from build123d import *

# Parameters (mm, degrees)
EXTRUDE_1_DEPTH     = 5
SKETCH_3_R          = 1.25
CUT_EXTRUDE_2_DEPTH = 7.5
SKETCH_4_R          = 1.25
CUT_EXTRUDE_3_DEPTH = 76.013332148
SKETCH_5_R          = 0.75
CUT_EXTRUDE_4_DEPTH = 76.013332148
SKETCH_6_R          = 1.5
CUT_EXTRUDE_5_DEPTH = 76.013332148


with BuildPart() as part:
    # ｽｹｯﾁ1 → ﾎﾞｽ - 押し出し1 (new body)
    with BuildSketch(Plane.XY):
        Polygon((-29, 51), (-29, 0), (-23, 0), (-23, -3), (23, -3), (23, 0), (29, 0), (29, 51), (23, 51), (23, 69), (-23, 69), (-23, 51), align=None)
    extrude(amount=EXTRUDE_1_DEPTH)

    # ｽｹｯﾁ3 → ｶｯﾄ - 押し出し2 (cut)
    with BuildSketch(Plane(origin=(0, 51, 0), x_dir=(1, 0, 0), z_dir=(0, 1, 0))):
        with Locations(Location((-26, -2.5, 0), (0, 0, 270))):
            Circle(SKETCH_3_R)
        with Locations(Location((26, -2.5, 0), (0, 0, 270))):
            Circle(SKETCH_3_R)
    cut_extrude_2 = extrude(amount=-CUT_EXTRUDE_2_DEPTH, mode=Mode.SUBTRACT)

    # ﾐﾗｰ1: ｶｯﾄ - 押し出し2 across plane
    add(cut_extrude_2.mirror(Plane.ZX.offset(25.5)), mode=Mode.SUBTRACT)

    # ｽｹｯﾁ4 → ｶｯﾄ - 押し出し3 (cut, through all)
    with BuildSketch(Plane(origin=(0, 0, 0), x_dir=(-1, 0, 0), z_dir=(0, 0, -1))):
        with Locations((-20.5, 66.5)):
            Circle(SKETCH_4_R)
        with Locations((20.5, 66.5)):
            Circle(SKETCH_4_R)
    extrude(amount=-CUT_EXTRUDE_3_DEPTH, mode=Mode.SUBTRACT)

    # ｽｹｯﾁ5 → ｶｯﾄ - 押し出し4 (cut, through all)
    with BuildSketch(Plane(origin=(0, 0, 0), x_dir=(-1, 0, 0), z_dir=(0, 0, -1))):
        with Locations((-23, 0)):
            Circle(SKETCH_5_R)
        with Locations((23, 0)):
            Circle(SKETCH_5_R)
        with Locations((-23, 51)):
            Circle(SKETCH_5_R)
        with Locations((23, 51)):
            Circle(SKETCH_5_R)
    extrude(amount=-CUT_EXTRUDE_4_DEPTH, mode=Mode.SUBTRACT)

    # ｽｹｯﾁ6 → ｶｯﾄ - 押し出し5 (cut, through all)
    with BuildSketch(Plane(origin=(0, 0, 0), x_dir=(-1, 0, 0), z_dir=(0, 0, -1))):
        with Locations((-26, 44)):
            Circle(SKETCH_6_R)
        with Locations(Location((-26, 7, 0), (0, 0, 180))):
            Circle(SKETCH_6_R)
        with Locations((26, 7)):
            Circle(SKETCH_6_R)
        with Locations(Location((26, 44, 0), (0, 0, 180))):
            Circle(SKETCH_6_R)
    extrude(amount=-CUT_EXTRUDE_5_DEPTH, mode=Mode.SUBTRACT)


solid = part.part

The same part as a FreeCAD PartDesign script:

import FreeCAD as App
import Part
import Sketcher

V = App.Vector


def add_polygon(sketch, points):
    """Adds a closed chain of lines whose ends are joined by coincident constraints."""
    first, n = sketch.GeometryCount, len(points)
    for a, b in zip(points, points[1:] + points[:1]):
        sketch.addGeometry(Part.LineSegment(App.Vector(*a, 0), App.Vector(*b, 0)), False)
    for i in range(n):
        sketch.addConstraint(Sketcher.Constraint("Coincident", first + i, 2, first + (i + 1) % n, 1))

doc = App.newDocument("Part")
params = doc.addObject("Spreadsheet::Sheet", "Params")
for row, (alias, value) in enumerate([
    ("sketch1_width", "6 mm"),
    ("sketch1_width2", "46 mm"),
    ("sketch1_height", "51 mm"),
    ("sketch1_height2", "3 mm"),
    ("sketch1_height3", "18 mm"),
    ("pad1_length", "5 mm"),
    ("sketch2_diameter", "2.5 mm"),
    ("pocket1_length", "7.5 mm"),
    ("sketch3_diameter", "2.5 mm"),
    ("sketch4_diameter", "1.5 mm"),
    ("sketch5_diameter", "3 mm"),
], start=1):
    params.set(f"A{row}", alias)
    params.set(f"B{row}", "=" + value)
    params.setAlias(f"B{row}", alias)

body = doc.addObject("PartDesign::Body", "Body")

sketch1 = doc.addObject("Sketcher::SketchObject", "Sketch")
body.addObject(sketch1)
sketch1.AttachmentSupport = (doc.XY_Plane, [""])
sketch1.MapMode = "FlatFace"
add_polygon(sketch1, [(-29, 51), (-29, 0), (-23, 0), (-23, -3), (23, -3), (23, 0), (29, 0), (29, 51), (23, 51), (23, 69), (-23, 69), (-23, 51)])
sketch1.addConstraint([
    Sketcher.Constraint("Vertical", 0),
    Sketcher.Constraint("Horizontal", 1),
    Sketcher.Constraint("Vertical", 2),
    Sketcher.Constraint("Horizontal", 3),
    Sketcher.Constraint("Vertical", 4),
    Sketcher.Constraint("Horizontal", 5),
    Sketcher.Constraint("Vertical", 6),
    Sketcher.Constraint("Horizontal", 7),
    Sketcher.Constraint("Vertical", 8),
    Sketcher.Constraint("Horizontal", 9),
    Sketcher.Constraint("Vertical", 10),
    Sketcher.Constraint("Horizontal", 11),
    Sketcher.Constraint("Symmetric", 1, 2, 4, 2, -1, 1),
    Sketcher.Constraint("Symmetric", 0, 2, 5, 2, -2),
    Sketcher.Constraint("Symmetric", 7, 2, 10, 2, -2),
    Sketcher.Constraint("Vertical", 4, 2, 7, 2),
    Sketcher.Constraint("DistanceX", 1, 1, 1, 2, 6.0),
    Sketcher.Constraint("DistanceX", 3, 1, 3, 2, 46.0),
    Sketcher.Constraint("DistanceY", 0, 2, 0, 1, 51.0),
    Sketcher.Constraint("DistanceY", 2, 2, 2, 1, 3.0),
    Sketcher.Constraint("DistanceY", 8, 1, 8, 2, 18.0),
])
sketch1.setExpression("Constraints[28]", "Params.sketch1_width")
sketch1.setExpression("Constraints[29]", "Params.sketch1_width2")
sketch1.setExpression("Constraints[30]", "Params.sketch1_height")
sketch1.setExpression("Constraints[31]", "Params.sketch1_height2")
sketch1.setExpression("Constraints[32]", "Params.sketch1_height3")
pad1 = doc.addObject("PartDesign::Pad", "Pad")
body.addObject(pad1)
pad1.Profile = sketch1
pad1.setExpression("Length", "Params.pad1_length")

sketch2 = doc.addObject("Sketcher::SketchObject", "Sketch001")
body.addObject(sketch2)
sketch2.AttachmentSupport = (doc.XZ_Plane, [""])
sketch2.MapMode = "FlatFace"
sketch2.AttachmentOffset = App.Placement(V(0, 0, -51), App.Rotation())
sketch2.addGeometry([
    Part.Circle(V(-26, 2.5, 0), V(0, 0, 1), 1.2),
    Part.Circle(V(26, 2.5, 0), V(0, 0, 1), 1.2),
], False)
sketch2.addConstraint([
    Sketcher.Constraint("Equal", 0, 1),
    Sketcher.Constraint("Symmetric", 0, 3, 1, 3, -2),
    Sketcher.Constraint("Diameter", 0, 2.5),
    Sketcher.Constraint("DistanceX", 0, 3, -1, 1, 26.0),
    Sketcher.Constraint("DistanceY", -1, 1, 0, 3, 2.5),
])
sketch2.setExpression("Constraints[2]", "Params.sketch2_diameter")
pocket1 = doc.addObject("PartDesign::Pocket", "Pocket")
body.addObject(pocket1)
pocket1.Profile = sketch2
pocket1.setExpression("Length", "Params.pocket1_length")
pocket1.Reversed = True
doc.recompute()

datumplane = doc.addObject("PartDesign::Plane", "DatumPlane")
body.addObject(datumplane)
datumplane.AttachmentSupport = (doc.XZ_Plane, [""])
datumplane.MapMode = "FlatFace"
datumplane.AttachmentOffset = App.Placement(V(0, 0, -25.5), App.Rotation())
mirrored = doc.addObject("PartDesign::Mirrored", "Mirrored")
body.addObject(mirrored)
mirrored.Originals = [pocket1]
mirrored.MirrorPlane = (datumplane, [""])
body.Tip = mirrored

sketch3 = doc.addObject("Sketcher::SketchObject", "Sketch002")
body.addObject(sketch3)
sketch3.AttachmentSupport = (doc.XY_Plane, [""])
sketch3.MapMode = "FlatFace"
sketch3.addGeometry([
    Part.Circle(V(20.5, 66.5, 0), V(0, 0, 1), 1.2),
    Part.Circle(V(-20.5, 66.5, 0), V(0, 0, 1), 1.2),
], False)
sketch3.addConstraint([
    Sketcher.Constraint("Equal", 0, 1),
    Sketcher.Constraint("Symmetric", 0, 3, 1, 3, -2),
    Sketcher.Constraint("Diameter", 0, 2.5),
    Sketcher.Constraint("DistanceX", 1, 3, 0, 3, 41.0),
    Sketcher.Constraint("DistanceY", -1, 1, 0, 3, 66.5),
])
sketch3.setExpression("Constraints[2]", "Params.sketch3_diameter")
pocket2 = doc.addObject("PartDesign::Pocket", "Pocket001")
body.addObject(pocket2)
pocket2.Profile = sketch3
pocket2.Type = "ThroughAll"
pocket2.Reversed = True

sketch4 = doc.addObject("Sketcher::SketchObject", "Sketch003")
body.addObject(sketch4)
sketch4.AttachmentSupport = (doc.XY_Plane, [""])
sketch4.MapMode = "FlatFace"
sketch4.addGeometry([
    Part.Circle(V(23, 0, 0), V(0, 0, 1), 0.8),
    Part.Circle(V(-23, 0, 0), V(0, 0, 1), 0.8),
    Part.Circle(V(23, 51, 0), V(0, 0, 1), 0.8),
    Part.Circle(V(-23, 51, 0), V(0, 0, 1), 0.8),
], False)
sketch4.addConstraint([
    Sketcher.Constraint("Equal", 0, 1),
    Sketcher.Constraint("Equal", 1, 2),
    Sketcher.Constraint("Equal", 2, 3),
    Sketcher.Constraint("Symmetric", 0, 3, 1, 3, -1, 1),
    Sketcher.Constraint("Symmetric", 2, 3, 3, 3, -2),
    Sketcher.Constraint("PointOnObject", 0, 3, -1),
    Sketcher.Constraint("Vertical", 0, 3, 2, 3),
    Sketcher.Constraint("Diameter", 0, 1.5),
    Sketcher.Constraint("DistanceX", -1, 1, 0, 3, 23.0),
    Sketcher.Constraint("DistanceY", -1, 1, 2, 3, 51.0),
])
sketch4.setExpression("Constraints[7]", "Params.sketch4_diameter")
pocket3 = doc.addObject("PartDesign::Pocket", "Pocket002")
body.addObject(pocket3)
pocket3.Profile = sketch4
pocket3.Type = "ThroughAll"
pocket3.Reversed = True

sketch5 = doc.addObject("Sketcher::SketchObject", "Sketch004")
body.addObject(sketch5)
sketch5.AttachmentSupport = (doc.XY_Plane, [""])
sketch5.MapMode = "FlatFace"
sketch5.addGeometry([
    Part.Circle(V(26, 44, 0), V(0, 0, 1), 1.5),
    Part.Circle(V(26, 7, 0), V(0, 0, 1), 1.5),
    Part.Circle(V(-26, 7, 0), V(0, 0, 1), 1.5),
    Part.Circle(V(-26, 44, 0), V(0, 0, 1), 1.5),
], False)
sketch5.addConstraint([
    Sketcher.Constraint("Equal", 0, 1),
    Sketcher.Constraint("Equal", 1, 2),
    Sketcher.Constraint("Equal", 2, 3),
    Sketcher.Constraint("Symmetric", 1, 3, 2, 3, -2),
    Sketcher.Constraint("Symmetric", 0, 3, 3, 3, -2),
    Sketcher.Constraint("Vertical", 0, 3, 1, 3),
    Sketcher.Constraint("Diameter", 0, 3.0),
    Sketcher.Constraint("DistanceX", -1, 1, 0, 3, 26.0),
    Sketcher.Constraint("DistanceY", -1, 1, 0, 3, 44.0),
    Sketcher.Constraint("DistanceY", -1, 1, 1, 3, 7.0),
])
sketch5.setExpression("Constraints[6]", "Params.sketch5_diameter")
pocket4 = doc.addObject("PartDesign::Pocket", "Pocket003")
body.addObject(pocket4)
pocket4.Profile = sketch5
pocket4.Type = "ThroughAll"
pocket4.Reversed = True

doc.recompute()
